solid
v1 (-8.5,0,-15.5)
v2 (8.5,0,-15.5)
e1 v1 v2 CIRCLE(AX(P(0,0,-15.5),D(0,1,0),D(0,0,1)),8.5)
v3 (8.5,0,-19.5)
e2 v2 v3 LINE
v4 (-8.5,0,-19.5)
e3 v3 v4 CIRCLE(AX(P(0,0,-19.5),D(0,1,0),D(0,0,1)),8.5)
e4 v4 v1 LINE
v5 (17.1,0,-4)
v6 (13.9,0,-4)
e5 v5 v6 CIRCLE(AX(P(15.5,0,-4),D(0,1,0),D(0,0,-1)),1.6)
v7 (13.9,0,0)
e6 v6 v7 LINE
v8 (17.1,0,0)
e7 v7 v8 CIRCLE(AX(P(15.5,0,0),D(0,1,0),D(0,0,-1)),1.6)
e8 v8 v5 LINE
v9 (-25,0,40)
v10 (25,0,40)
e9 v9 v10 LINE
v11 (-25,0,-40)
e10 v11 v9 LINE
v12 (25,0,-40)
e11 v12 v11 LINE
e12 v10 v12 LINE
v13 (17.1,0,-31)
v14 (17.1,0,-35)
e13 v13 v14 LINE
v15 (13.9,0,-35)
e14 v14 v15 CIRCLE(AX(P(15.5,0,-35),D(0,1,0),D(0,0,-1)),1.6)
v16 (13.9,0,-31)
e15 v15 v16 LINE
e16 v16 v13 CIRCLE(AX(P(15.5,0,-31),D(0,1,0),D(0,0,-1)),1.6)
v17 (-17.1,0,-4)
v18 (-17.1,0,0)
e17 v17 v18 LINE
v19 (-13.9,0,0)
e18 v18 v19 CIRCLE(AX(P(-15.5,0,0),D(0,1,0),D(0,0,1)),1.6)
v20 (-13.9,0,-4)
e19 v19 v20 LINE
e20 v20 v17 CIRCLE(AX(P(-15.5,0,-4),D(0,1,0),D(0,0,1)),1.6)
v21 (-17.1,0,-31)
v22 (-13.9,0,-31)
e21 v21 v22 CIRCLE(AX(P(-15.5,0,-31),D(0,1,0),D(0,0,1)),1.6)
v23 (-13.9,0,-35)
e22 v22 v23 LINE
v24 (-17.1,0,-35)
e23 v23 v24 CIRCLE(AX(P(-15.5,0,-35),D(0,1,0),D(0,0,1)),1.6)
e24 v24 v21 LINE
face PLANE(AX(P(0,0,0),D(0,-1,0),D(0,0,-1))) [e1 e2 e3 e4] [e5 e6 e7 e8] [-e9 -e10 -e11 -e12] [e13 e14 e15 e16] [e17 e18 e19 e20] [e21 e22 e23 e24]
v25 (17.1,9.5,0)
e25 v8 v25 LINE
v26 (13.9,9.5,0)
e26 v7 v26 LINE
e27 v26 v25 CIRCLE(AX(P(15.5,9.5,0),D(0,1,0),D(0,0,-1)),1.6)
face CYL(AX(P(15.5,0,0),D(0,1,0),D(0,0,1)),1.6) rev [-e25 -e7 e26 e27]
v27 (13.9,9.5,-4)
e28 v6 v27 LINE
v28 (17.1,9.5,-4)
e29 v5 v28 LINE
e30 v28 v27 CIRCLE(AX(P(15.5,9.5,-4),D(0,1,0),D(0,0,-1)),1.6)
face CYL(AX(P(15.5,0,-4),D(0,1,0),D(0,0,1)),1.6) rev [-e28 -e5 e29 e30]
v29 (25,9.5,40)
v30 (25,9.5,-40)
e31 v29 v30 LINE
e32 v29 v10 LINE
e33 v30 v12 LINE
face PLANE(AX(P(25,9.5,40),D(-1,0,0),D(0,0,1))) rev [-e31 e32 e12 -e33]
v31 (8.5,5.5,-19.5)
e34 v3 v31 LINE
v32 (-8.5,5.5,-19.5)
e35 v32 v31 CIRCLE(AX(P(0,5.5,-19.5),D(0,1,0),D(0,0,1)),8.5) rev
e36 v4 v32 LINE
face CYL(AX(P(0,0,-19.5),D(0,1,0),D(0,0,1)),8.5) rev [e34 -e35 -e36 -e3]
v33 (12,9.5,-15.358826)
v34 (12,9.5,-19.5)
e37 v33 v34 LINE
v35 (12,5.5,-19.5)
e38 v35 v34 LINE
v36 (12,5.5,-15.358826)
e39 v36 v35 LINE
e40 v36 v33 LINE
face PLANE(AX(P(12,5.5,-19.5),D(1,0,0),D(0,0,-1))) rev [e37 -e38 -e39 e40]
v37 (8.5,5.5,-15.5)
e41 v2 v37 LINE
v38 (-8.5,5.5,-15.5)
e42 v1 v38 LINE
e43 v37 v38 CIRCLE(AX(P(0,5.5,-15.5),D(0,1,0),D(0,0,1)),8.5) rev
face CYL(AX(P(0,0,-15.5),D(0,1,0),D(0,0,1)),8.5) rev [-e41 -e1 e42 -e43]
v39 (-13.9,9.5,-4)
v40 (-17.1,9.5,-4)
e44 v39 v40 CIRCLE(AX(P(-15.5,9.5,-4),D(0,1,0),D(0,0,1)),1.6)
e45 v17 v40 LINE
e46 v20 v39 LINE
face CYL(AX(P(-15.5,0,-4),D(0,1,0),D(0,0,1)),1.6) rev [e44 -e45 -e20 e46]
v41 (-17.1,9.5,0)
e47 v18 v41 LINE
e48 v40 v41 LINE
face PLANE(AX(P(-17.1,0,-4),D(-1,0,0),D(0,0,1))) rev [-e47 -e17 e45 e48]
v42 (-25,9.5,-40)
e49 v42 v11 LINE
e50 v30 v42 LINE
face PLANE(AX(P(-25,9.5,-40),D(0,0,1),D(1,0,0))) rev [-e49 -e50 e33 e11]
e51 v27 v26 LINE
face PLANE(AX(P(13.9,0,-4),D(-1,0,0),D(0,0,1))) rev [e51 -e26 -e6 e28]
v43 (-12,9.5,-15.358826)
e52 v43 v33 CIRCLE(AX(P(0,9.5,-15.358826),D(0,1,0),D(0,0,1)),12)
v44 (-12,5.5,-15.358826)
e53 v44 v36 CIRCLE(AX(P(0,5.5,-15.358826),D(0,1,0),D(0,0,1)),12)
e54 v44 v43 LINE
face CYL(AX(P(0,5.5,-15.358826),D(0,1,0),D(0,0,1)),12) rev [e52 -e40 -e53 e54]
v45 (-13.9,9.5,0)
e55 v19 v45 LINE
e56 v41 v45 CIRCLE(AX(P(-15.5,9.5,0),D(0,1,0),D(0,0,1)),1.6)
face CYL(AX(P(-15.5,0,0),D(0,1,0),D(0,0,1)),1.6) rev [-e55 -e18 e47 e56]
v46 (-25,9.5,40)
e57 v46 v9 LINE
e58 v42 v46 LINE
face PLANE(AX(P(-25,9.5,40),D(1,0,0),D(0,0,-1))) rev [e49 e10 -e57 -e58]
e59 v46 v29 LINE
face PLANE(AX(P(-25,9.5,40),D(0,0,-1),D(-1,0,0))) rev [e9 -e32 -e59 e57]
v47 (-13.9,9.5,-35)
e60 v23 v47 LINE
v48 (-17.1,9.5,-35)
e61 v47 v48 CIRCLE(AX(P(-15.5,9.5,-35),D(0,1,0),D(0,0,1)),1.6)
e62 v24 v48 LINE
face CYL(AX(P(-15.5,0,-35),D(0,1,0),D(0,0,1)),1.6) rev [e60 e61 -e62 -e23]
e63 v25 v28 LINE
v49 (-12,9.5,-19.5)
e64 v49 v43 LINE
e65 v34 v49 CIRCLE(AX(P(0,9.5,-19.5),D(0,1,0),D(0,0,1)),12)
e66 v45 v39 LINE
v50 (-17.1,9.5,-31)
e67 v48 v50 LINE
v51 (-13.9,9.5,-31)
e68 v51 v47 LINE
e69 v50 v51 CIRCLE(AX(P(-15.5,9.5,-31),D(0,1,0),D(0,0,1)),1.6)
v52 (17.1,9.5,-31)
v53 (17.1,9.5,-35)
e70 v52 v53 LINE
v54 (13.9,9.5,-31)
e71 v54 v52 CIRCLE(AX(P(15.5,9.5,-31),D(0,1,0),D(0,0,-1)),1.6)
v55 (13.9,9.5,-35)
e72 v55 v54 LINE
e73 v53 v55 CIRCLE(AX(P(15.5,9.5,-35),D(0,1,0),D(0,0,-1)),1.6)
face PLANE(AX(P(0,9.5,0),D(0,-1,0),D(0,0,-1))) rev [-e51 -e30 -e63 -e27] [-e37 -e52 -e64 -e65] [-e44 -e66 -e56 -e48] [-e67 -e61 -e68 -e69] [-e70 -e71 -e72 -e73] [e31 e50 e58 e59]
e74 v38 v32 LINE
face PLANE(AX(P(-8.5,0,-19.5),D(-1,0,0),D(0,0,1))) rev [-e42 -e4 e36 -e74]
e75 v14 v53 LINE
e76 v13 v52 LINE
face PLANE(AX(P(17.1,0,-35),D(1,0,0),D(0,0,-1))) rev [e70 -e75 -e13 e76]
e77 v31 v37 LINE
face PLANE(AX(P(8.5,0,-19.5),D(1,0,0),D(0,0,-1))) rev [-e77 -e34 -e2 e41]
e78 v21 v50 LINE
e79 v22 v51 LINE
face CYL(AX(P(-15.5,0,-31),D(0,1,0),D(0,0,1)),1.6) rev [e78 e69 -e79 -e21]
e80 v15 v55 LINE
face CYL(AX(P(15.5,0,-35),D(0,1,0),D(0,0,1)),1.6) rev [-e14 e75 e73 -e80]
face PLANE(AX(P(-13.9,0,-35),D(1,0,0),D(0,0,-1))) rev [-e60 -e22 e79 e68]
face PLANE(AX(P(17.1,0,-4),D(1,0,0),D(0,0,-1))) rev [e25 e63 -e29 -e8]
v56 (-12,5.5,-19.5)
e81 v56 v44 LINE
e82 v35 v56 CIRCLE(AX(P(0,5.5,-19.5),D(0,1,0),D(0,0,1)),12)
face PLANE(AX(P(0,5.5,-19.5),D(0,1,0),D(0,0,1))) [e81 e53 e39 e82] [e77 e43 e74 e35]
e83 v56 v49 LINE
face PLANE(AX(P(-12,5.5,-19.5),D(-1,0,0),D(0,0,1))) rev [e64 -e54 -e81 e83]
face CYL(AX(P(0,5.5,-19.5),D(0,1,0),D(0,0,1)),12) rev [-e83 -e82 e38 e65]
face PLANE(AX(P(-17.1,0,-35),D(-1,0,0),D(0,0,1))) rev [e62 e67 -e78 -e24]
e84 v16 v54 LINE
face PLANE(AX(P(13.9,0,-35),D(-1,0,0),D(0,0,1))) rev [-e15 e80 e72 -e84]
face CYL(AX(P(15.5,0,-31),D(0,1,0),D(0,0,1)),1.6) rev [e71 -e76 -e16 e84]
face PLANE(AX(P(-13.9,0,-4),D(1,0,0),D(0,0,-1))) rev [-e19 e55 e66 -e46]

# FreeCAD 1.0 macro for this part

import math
import FreeCAD as App
import Part
import Sketcher
from FreeCAD import Vector


def add_polygon(sketch, points):
    """Adds a closed chain of lines whose ends are joined by coincident constraints."""
    first, n = sketch.GeometryCount, len(points)
    for a, b in zip(points, points[1:] + points[:1]):
        sketch.addGeometry(Part.LineSegment(App.Vector(*a, 0), App.Vector(*b, 0)), False)
    for i in range(n):
        sketch.addConstraint(Sketcher.Constraint("Coincident", first + i, 2, first + (i + 1) % n, 1))

doc = App.newDocument("Part")
body = doc.addObject("PartDesign::Body", "Body")

sketch1 = body.newObject("Sketcher::SketchObject", "Sketch")
sketch1.AttachmentSupport = (doc.getObject("XZ_Plane"), [""])
sketch1.MapMode = "FlatFace"
add_polygon(sketch1, [(-25, -40), (-25, 40), (25, 40), (25, -40)])
sketch1.addConstraint(Sketcher.Constraint("Vertical", 0))
sketch1.addConstraint(Sketcher.Constraint("Horizontal", 1))
sketch1.addConstraint(Sketcher.Constraint("Vertical", 2))
sketch1.addConstraint(Sketcher.Constraint("Horizontal", 3))
sketch1.addConstraint(Sketcher.Constraint("Symmetric", 0, 2, 2, 2, -1, 1))
sketch1.addConstraint(Sketcher.Constraint("DistanceX", 1, 1, 1, 2, 50.0))
sketch1.addConstraint(Sketcher.Constraint("DistanceY", 0, 1, 0, 2, 80.0))
pad1 = body.newObject("PartDesign::Pad", "Pad")
pad1.Profile = sketch1
pad1.Length = 9.5
pad1.Reversed = True

sketch2 = body.newObject("Sketcher::SketchObject", "Sketch001")
sketch2.AttachmentSupport = (doc.getObject("XZ_Plane"), [""])
sketch2.MapMode = "FlatFace"
sketch2.AttachmentOffset = App.Placement(Vector(0, 0, -9.5), App.Rotation())
sketch2.addGeometry(Part.LineSegment(Vector(-13.9, -31, 0), Vector(-13.9, -35, 0)), False)
sketch2.addGeometry(Part.ArcOfCircle(Part.Circle(Vector(-15.5, -35, 0), Vector(0, 0, 1), 1.6), math.radians(180), math.radians(360)), False)
sketch2.addGeometry(Part.LineSegment(Vector(-17.1, -35, 0), Vector(-17.1, -31, 0)), False)
sketch2.addGeometry(Part.ArcOfCircle(Part.Circle(Vector(-15.5, -31, 0), Vector(0, 0, 1), 1.6), math.radians(0), math.radians(180)), False)
sketch2.addGeometry(Part.LineSegment(Vector(13.9, -35, 0), Vector(13.9, -31, 0)), False)
sketch2.addGeometry(Part.ArcOfCircle(Part.Circle(Vector(15.5, -31, 0), Vector(0, 0, 1), 1.6), math.radians(0), math.radians(180)), False)
sketch2.addGeometry(Part.LineSegment(Vector(17.1, -31, 0), Vector(17.1, -35, 0)), False)
sketch2.addGeometry(Part.ArcOfCircle(Part.Circle(Vector(15.5, -35, 0), Vector(0, 0, 1), 1.6), math.radians(180), math.radians(360)), False)
sketch2.addGeometry(Part.LineSegment(Vector(-13.9, 0, 0), Vector(-13.9, -4, 0)), False)
sketch2.addGeometry(Part.ArcOfCircle(Part.Circle(Vector(-15.5, -4, 0), Vector(0, 0, 1), 1.6), math.radians(180), math.radians(360)), False)
sketch2.addGeometry(Part.LineSegment(Vector(-17.1, -4, 0), Vector(-17.1, 0, 0)), False)
sketch2.addGeometry(Part.ArcOfCircle(Part.Circle(Vector(-15.5, 0, 0), Vector(0, 0, 1), 1.6), math.radians(0), math.radians(180)), False)
sketch2.addGeometry(Part.LineSegment(Vector(13.9, -4, 0), Vector(13.9, 0, 0)), False)
sketch2.addGeometry(Part.ArcOfCircle(Part.Circle(Vector(15.5, 0, 0), Vector(0, 0, 1), 1.6), math.radians(0), math.radians(180)), False)
sketch2.addGeometry(Part.LineSegment(Vector(17.1, 0, 0), Vector(17.1, -4, 0)), False)
sketch2.addGeometry(Part.ArcOfCircle(Part.Circle(Vector(15.5, -4, 0), Vector(0, 0, 1), 1.6), math.radians(180), math.radians(360)), False)
sketch2.addGeometry(Part.LineSegment(Vector(8.5, -15.5, 0), Vector(8.5, -19.5, 0)), False)
sketch2.addGeometry(Part.ArcOfCircle(Part.Circle(Vector(0, -19.5, 0), Vector(0, 0, 1), 8.5), math.radians(180), math.radians(360)), False)
sketch2.addGeometry(Part.LineSegment(Vector(-8.5, -19.5, 0), Vector(-8.5, -15.5, 0)), False)
sketch2.addGeometry(Part.ArcOfCircle(Part.Circle(Vector(0, -15.5, 0), Vector(0, 0, 1), 8.5), math.radians(0), math.radians(180)), False)
sketch2.addConstraint(Sketcher.Constraint("Tangent", 0, 2, 1, 2))
sketch2.addConstraint(Sketcher.Constraint("Tangent", 1, 1, 2, 1))
sketch2.addConstraint(Sketcher.Constraint("Tangent", 2, 2, 3, 2))
sketch2.addConstraint(Sketcher.Constraint("Tangent", 3, 1, 0, 1))
sketch2.addConstraint(Sketcher.Constraint("Tangent", 4, 2, 5, 2))
sketch2.addConstraint(Sketcher.Constraint("Tangent", 5, 1, 6, 1))
sketch2.addConstraint(Sketcher.Constraint("Tangent", 6, 2, 7, 2))
sketch2.addConstraint(Sketcher.Constraint("Tangent", 7, 1, 4, 1))
sketch2.addConstraint(Sketcher.Constraint("Tangent", 8, 2, 9, 2))
sketch2.addConstraint(Sketcher.Constraint("Tangent", 9, 1, 10, 1))
sketch2.addConstraint(Sketcher.Constraint("Tangent", 10, 2, 11, 2))
sketch2.addConstraint(Sketcher.Constraint("Tangent", 11, 1, 8, 1))
sketch2.addConstraint(Sketcher.Constraint("Tangent", 12, 2, 13, 2))
sketch2.addConstraint(Sketcher.Constraint("Tangent", 13, 1, 14, 1))
sketch2.addConstraint(Sketcher.Constraint("Tangent", 14, 2, 15, 2))
sketch2.addConstraint(Sketcher.Constraint("Tangent", 15, 1, 12, 1))
sketch2.addConstraint(Sketcher.Constraint("Tangent", 16, 2, 17, 2))
sketch2.addConstraint(Sketcher.Constraint("Tangent", 17, 1, 18, 1))
sketch2.addConstraint(Sketcher.Constraint("Tangent", 18, 2, 19, 2))
sketch2.addConstraint(Sketcher.Constraint("Tangent", 19, 1, 16, 1))
sketch2.addConstraint(Sketcher.Constraint("Vertical", 0))
sketch2.addConstraint(Sketcher.Constraint("Vertical", 2))
sketch2.addConstraint(Sketcher.Constraint("Vertical", 4))
sketch2.addConstraint(Sketcher.Constraint("Vertical", 6))
sketch2.addConstraint(Sketcher.Constraint("Vertical", 8))
sketch2.addConstraint(Sketcher.Constraint("Vertical", 10))
sketch2.addConstraint(Sketcher.Constraint("Vertical", 12))
sketch2.addConstraint(Sketcher.Constraint("Vertical", 14))
sketch2.addConstraint(Sketcher.Constraint("Vertical", 16))
sketch2.addConstraint(Sketcher.Constraint("Vertical", 18))
sketch2.addConstraint(Sketcher.Constraint("Equal", 3, 5))
sketch2.addConstraint(Sketcher.Constraint("Equal", 7, 9))
sketch2.addConstraint(Sketcher.Constraint("Equal", 11, 13))
sketch2.addConstraint(Sketcher.Constraint("Symmetric", 11, 3, 13, 3, -1, 1))
sketch2.addConstraint(Sketcher.Constraint("Symmetric", 3, 3, 5, 3, -2))
sketch2.addConstraint(Sketcher.Constraint("PointOnObject", 11, 3, -1))
sketch2.addConstraint(Sketcher.Constraint("PointOnObject", 17, 3, -2))
sketch2.addConstraint(Sketcher.Constraint("Horizontal", 1, 3, 7, 3))
sketch2.addConstraint(Sketcher.Constraint("Horizontal", 9, 3, 15, 3))
sketch2.addConstraint(Sketcher.Constraint("Vertical", 3, 3, 9, 3))
sketch2.addConstraint(Sketcher.Constraint("Equal", 6, 8))
sketch2.addConstraint(Sketcher.Constraint("Equal", 14, 16))
sketch2.addConstraint(Sketcher.Constraint("Radius", 1, 1.6))
sketch2.addConstraint(Sketcher.Constraint("Radius", 17, 8.5))
sketch2.addConstraint(Sketcher.Constraint("DistanceY", 0, 2, 0, 1, 4.0))
sketch2.addConstraint(Sketcher.Constraint("DistanceY", 1, 3, -1, 1, 35.0))
sketch2.addConstraint(Sketcher.Constraint("DistanceX", 3, 3, 5, 3, 31.0))
sketch2.addConstraint(Sketcher.Constraint("DistanceY", 17, 3, -1, 1, 19.5))
pocket1 = body.newObject("PartDesign::Pocket", "Pocket")
pocket1.Profile = sketch2
pocket1.Type = "ThroughAll"
pocket1.Reversed = True

sketch3 = body.newObject("Sketcher::SketchObject", "Sketch002")
sketch3.AttachmentSupport = (doc.getObject("XZ_Plane"), [""])
sketch3.MapMode = "FlatFace"
sketch3.AttachmentOffset = App.Placement(Vector(0, 0, -9.5), App.Rotation())
sketch3.addGeometry(Part.LineSegment(Vector(12, -15.4, 0), Vector(12, -19.5, 0)), False)
sketch3.addGeometry(Part.ArcOfCircle(Part.Circle(Vector(0, -19.5, 0), Vector(0, 0, 1), 12), math.radians(180), math.radians(360)), False)
sketch3.addGeometry(Part.LineSegment(Vector(-12, -19.5, 0), Vector(-12, -15.4, 0)), False)
sketch3.addGeometry(Part.ArcOfCircle(Part.Circle(Vector(0, -15.4, 0), Vector(0, 0, 1), 12), math.radians(0), math.radians(180)), False)
sketch3.addConstraint(Sketcher.Constraint("Tangent", 0, 2, 1, 2))
sketch3.addConstraint(Sketcher.Constraint("Tangent", 1, 1, 2, 1))
sketch3.addConstraint(Sketcher.Constraint("Tangent", 2, 2, 3, 2))
sketch3.addConstraint(Sketcher.Constraint("Tangent", 3, 1, 0, 1))
sketch3.addConstraint(Sketcher.Constraint("Vertical", 0))
sketch3.addConstraint(Sketcher.Constraint("Vertical", 2))
sketch3.addConstraint(Sketcher.Constraint("PointOnObject", 1, 3, -2))
sketch3.addConstraint(Sketcher.Constraint("Radius", 1, 12.0))
sketch3.addConstraint(Sketcher.Constraint("DistanceY", 1, 3, -1, 1, 19.5))
sketch3.addConstraint(Sketcher.Constraint("DistanceY", 0, 2, 0, 1, 4.141174))
pocket2 = body.newObject("PartDesign::Pocket", "Pocket001")
pocket2.Profile = sketch3
pocket2.Length = 4
pocket2.Reversed = True

doc.recompute()
